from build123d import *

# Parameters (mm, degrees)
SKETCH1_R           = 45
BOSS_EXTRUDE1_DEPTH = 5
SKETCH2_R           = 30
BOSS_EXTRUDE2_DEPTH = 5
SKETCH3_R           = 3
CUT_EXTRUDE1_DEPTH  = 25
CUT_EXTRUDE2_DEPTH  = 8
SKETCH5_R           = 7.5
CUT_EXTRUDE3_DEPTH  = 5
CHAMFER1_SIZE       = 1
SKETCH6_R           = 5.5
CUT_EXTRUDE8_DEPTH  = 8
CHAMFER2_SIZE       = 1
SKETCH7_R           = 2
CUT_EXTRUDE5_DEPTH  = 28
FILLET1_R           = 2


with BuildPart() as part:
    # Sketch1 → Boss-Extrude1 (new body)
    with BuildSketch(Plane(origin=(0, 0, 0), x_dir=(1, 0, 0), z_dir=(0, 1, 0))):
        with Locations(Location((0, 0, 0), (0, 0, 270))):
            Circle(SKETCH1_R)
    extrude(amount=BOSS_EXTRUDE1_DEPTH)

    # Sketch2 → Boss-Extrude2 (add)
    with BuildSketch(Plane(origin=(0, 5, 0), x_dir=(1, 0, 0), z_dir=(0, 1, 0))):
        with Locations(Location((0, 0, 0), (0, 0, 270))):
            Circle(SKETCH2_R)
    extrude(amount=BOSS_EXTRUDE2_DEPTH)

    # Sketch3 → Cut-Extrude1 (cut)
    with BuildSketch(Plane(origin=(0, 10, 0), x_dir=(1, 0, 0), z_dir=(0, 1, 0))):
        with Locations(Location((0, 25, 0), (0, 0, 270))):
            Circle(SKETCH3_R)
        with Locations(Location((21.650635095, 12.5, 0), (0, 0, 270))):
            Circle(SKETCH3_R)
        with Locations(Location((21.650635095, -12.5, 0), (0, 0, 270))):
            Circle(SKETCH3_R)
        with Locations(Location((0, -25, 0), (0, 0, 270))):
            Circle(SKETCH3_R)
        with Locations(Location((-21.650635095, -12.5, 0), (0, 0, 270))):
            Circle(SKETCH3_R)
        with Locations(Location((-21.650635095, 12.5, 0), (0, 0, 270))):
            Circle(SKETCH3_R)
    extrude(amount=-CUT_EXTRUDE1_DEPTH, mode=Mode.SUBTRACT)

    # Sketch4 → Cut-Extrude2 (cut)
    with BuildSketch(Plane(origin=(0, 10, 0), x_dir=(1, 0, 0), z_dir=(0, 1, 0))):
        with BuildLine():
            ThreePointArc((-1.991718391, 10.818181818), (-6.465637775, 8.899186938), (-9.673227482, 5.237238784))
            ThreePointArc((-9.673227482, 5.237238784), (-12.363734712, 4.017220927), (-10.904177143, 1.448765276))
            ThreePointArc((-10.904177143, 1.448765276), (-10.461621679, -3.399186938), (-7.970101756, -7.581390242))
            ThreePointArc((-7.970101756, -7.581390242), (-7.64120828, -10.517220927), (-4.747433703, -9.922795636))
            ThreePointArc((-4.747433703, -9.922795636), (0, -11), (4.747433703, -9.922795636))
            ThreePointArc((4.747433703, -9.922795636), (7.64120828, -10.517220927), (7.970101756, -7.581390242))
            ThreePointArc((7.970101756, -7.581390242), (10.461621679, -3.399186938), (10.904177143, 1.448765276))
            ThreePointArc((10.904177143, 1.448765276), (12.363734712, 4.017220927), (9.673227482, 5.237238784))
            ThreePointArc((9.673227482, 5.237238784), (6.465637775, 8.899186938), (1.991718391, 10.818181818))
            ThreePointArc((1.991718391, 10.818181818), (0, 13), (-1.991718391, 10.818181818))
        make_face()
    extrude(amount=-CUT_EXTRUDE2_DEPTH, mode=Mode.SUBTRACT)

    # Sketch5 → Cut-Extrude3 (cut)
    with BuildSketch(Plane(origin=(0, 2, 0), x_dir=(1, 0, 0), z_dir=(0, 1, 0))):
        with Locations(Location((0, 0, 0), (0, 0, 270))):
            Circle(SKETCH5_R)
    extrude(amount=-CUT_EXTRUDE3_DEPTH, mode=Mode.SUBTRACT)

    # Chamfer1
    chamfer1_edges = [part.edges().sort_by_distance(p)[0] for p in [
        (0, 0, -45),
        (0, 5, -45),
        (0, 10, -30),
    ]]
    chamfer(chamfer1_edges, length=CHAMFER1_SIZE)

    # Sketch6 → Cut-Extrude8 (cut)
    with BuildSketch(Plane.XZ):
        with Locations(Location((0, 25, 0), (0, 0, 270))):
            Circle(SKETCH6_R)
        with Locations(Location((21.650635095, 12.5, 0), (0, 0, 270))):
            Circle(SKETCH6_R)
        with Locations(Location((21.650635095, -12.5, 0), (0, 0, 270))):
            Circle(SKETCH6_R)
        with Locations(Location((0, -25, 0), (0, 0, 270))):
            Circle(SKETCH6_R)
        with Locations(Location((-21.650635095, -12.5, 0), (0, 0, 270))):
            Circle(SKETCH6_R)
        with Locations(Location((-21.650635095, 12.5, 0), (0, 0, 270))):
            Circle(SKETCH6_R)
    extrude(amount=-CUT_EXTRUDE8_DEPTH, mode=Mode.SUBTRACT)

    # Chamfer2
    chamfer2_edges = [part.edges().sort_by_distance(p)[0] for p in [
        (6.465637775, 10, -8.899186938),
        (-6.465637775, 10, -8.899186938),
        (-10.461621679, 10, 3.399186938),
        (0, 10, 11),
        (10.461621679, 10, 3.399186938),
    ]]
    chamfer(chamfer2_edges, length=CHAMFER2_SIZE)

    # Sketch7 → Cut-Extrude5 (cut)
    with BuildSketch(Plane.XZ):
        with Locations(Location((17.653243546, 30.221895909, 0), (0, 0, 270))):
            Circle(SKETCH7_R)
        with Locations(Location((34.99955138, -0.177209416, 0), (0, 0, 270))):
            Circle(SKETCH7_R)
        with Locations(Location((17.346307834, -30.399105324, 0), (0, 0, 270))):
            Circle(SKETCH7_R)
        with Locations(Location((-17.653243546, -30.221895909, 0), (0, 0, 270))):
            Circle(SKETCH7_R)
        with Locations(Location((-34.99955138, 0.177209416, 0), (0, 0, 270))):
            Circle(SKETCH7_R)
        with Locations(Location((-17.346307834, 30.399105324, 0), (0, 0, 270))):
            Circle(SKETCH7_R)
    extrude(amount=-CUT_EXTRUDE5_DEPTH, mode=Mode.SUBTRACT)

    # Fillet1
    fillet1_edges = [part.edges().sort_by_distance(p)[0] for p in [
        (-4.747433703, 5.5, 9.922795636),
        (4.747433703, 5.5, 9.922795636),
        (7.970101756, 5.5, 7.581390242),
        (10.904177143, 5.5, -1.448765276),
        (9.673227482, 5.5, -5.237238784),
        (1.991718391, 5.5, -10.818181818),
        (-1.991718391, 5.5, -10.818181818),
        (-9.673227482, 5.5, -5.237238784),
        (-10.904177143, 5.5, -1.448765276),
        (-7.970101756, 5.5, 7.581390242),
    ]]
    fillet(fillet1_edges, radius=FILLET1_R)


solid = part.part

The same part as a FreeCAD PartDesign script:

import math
import FreeCAD as App
import Part
import Sketcher
Q = App.Units.Quantity


def edges_at(feature, points):
    """Names of the edges that pass closest to the given points."""
    edges = feature.Shape.Edges
    near = lambda p: min(range(len(edges)), key=lambda i: edges[i].distToShape(Part.Vertex(*p))[0])
    return sorted({f"Edge{near(p) + 1}" for p in points})

doc = App.newDocument("Part")
body = doc.addObject("PartDesign::Body", "Body")

# Sketch on XZ plane
sketch1 = body.newObject("Sketcher::SketchObject", "Sketch")
sketch1.AttachmentSupport = (doc.getObject("XZ_Plane"), [""])
sketch1.MapMode = "FlatFace"
sketch1.addGeometry(Part.Circle(App.Vector(0, 0, 0), App.Vector(0, 0, 1), 45), False)
sketch1.addConstraint(Sketcher.Constraint("Coincident", 0, 3, -1, 1))
sketch1.addConstraint(Sketcher.Constraint("Diameter", 0, Q("90 mm")))
pad1 = body.newObject("PartDesign::Pad", "Pad")
pad1.Profile = sketch1
pad1.Length = 5
pad1.Reversed = True

# Sketch on XZ plane
sketch2 = body.newObject("Sketcher::SketchObject", "Sketch001")
sketch2.AttachmentSupport = (doc.getObject("XZ_Plane"), [""])
sketch2.MapMode = "FlatFace"
sketch2.AttachmentOffset = App.Placement(App.Vector(0, 0, -5), App.Rotation())
sketch2.addGeometry(Part.Circle(App.Vector(0, 0, 0), App.Vector(0, 0, 1), 30), False)
sketch2.addConstraint(Sketcher.Constraint("Coincident", 0, 3, -1, 1))
sketch2.addConstraint(Sketcher.Constraint("Diameter", 0, Q("60 mm")))
pad2 = body.newObject("PartDesign::Pad", "Pad001")
pad2.Profile = sketch2
pad2.Length = 5
pad2.Reversed = True

# Sketch on XZ plane
sketch3 = body.newObject("Sketcher::SketchObject", "Sketch002")
sketch3.AttachmentSupport = (doc.getObject("XZ_Plane"), [""])
sketch3.MapMode = "FlatFace"
sketch3.AttachmentOffset = App.Placement(App.Vector(0, 0, -10), App.Rotation())
sketch3.addGeometry(Part.Circle(App.Vector(0, -25, 0), App.Vector(0, 0, 1), 3), False)
sketch3.addGeometry(Part.Circle(App.Vector(21.7, -12.5, 0), App.Vector(0, 0, 1), 3), False)
sketch3.addGeometry(Part.Circle(App.Vector(21.7, 12.5, 0), App.Vector(0, 0, 1), 3), False)
sketch3.addGeometry(Part.Circle(App.Vector(0, 25, 0), App.Vector(0, 0, 1), 3), False)
sketch3.addGeometry(Part.Circle(App.Vector(-21.7, 12.5, 0), App.Vector(0, 0, 1), 3), False)
sketch3.addGeometry(Part.Circle(App.Vector(-21.7, -12.5, 0), App.Vector(0, 0, 1), 3), False)
sketch3.addConstraint(Sketcher.Constraint("Equal", 0, 1))
sketch3.addConstraint(Sketcher.Constraint("Equal", 1, 2))
sketch3.addConstraint(Sketcher.Constraint("Equal", 2, 3))
sketch3.addConstraint(Sketcher.Constraint("Equal", 3, 4))
sketch3.addConstraint(Sketcher.Constraint("Equal", 4, 5))
sketch3.addConstraint(Sketcher.Constraint("Symmetric", 0, 3, 3, 3, -1, 1))
sketch3.addConstraint(Sketcher.Constraint("Symmetric", 1, 3, 4, 3, -1, 1))
sketch3.addConstraint(Sketcher.Constraint("Symmetric", 2, 3, 5, 3, -1, 1))
sketch3.addConstraint(Sketcher.Constraint("Symmetric", 2, 3, 4, 3, -2))
sketch3.addConstraint(Sketcher.Constraint("PointOnObject", 0, 3, -2))
sketch3.addConstraint(Sketcher.Constraint("Diameter", 0, Q("6 mm")))
sketch3.addConstraint(Sketcher.Constraint("DistanceY", 0, 3, -1, 1, Q("25 mm")))
sketch3.addConstraint(Sketcher.Constraint("DistanceY", 1, 3, 2, 3, Q("25 mm")))
sketch3.addConstraint(Sketcher.Constraint("DistanceX", 4, 3, 2, 3, Q("43.30127 mm")))
pocket1 = body.newObject("PartDesign::Pocket", "Pocket")
pocket1.Profile = sketch3
pocket1.Length = 25
pocket1.Reversed = True

# Sketch on XZ plane
sketch4 = body.newObject("Sketcher::SketchObject", "Sketch003")
sketch4.AttachmentSupport = (doc.getObject("XZ_Plane"), [""])
sketch4.MapMode = "FlatFace"
sketch4.AttachmentOffset = App.Placement(App.Vector(0, 0, -10), App.Rotation())
sketch4.addGeometry(Part.ArcOfCircle(Part.Circle(App.Vector(0, 0, 0), App.Vector(0, 0, 1), 11), math.radians(-152), math.radians(-100)), False)
sketch4.addGeometry(Part.ArcOfCircle(Part.Circle(App.Vector(-10.5, -3.4, 0), App.Vector(0, 0, 1), 2), math.radians(103), math.radians(293)), False)
sketch4.addGeometry(Part.ArcOfCircle(Part.Circle(App.Vector(0, 0, 0), App.Vector(0, 0, 1), 11), math.radians(136), math.radians(188)), False)
sketch4.addGeometry(Part.ArcOfCircle(Part.Circle(App.Vector(-6.5, 8.9, 0), App.Vector(0, 0, 1), 2), math.radians(31), math.radians(221)), False)
sketch4.addGeometry(Part.ArcOfCircle(Part.Circle(App.Vector(0, 0, 0), App.Vector(0, 0, 1), 11), math.radians(64), math.radians(116)), False)
sketch4.addGeometry(Part.ArcOfCircle(Part.Circle(App.Vector(6.5, 8.9, 0), App.Vector(0, 0, 1), 2), math.radians(-41), math.radians(149)), False)
sketch4.addGeometry(Part.ArcOfCircle(Part.Circle(App.Vector(0, 0, 0), App.Vector(0, 0, 1), 11), math.radians(-8), math.radians(44)), False)
sketch4.addGeometry(Part.ArcOfCircle(Part.Circle(App.Vector(10.5, -3.4, 0), App.Vector(0, 0, 1), 2), math.radians(-113), math.radians(77)), False)
sketch4.addGeometry(Part.ArcOfCircle(Part.Circle(App.Vector(0, 0, 0), App.Vector(0, 0, 1), 11), math.radians(-80), math.radians(-28)), False)
sketch4.addGeometry(Part.ArcOfCircle(Part.Circle(App.Vector(0, -11, 0), App.Vector(0, 0, 1), 2), math.radians(175), math.radians(365)), False)
sketch4.addConstraint(Sketcher.Constraint("Coincident", 0, 1, 1, 2))
sketch4.addConstraint(Sketcher.Constraint("Coincident", 1, 1, 2, 2))
sketch4.addConstraint(Sketcher.Constraint("Coincident", 2, 1, 3, 2))
sketch4.addConstraint(Sketcher.Constraint("Coincident", 3, 1, 4, 2))
sketch4.addConstraint(Sketcher.Constraint("Coincident", 4, 1, 5, 2))
sketch4.addConstraint(Sketcher.Constraint("Coincident", 5, 1, 6, 2))
sketch4.addConstraint(Sketcher.Constraint("Coincident", 6, 1, 7, 2))
sketch4.addConstraint(Sketcher.Constraint("Coincident", 7, 1, 8, 2))
sketch4.addConstraint(Sketcher.Constraint("Coincident", 8, 1, 9, 2))
sketch4.addConstraint(Sketcher.Constraint("Coincident", 9, 1, 0, 2))
sketch4.addConstraint(Sketcher.Constraint("Coincident", 0, 3, -1, 1))
sketch4.addConstraint(Sketcher.Constraint("Coincident", 2, 3, -1, 1))
sketch4.addConstraint(Sketcher.Constraint("Coincident", 4, 3, -1, 1))
sketch4.addConstraint(Sketcher.Constraint("Coincident", 6, 3, -1, 1))
sketch4.addConstraint(Sketcher.Constraint("Coincident", 8, 3, -1, 1))
sketch4.addConstraint(Sketcher.Constraint("Equal", 0, 2))
sketch4.addConstraint(Sketcher.Constraint("Equal", 1, 3))
sketch4.addConstraint(Sketcher.Constraint("Equal", 2, 4))
sketch4.addConstraint(Sketcher.Constraint("Equal", 3, 5))
sketch4.addConstraint(Sketcher.Constraint("Equal", 4, 6))
sketch4.addConstraint(Sketcher.Constraint("Equal", 5, 7))
sketch4.addConstraint(Sketcher.Constraint("Equal", 6, 8))
sketch4.addConstraint(Sketcher.Constraint("Equal", 7, 9))
sketch4.addConstraint(Sketcher.Constraint("Symmetric", 3, 3, 5, 3, -2))
sketch4.addConstraint(Sketcher.Constraint("Symmetric", 1, 3, 7, 3, -2))
sketch4.addConstraint(Sketcher.Constraint("PointOnObject", 9, 3, -2))
sketch4.addConstraint(Sketcher.Constraint("Radius", 0, Q("11 mm")))
sketch4.addConstraint(Sketcher.Constraint("Radius", 1, Q("2 mm")))
sketch4.addConstraint(Sketcher.Constraint("DistanceY", 9, 3, -1, 1, Q("11 mm")))
sketch4.addConstraint(Sketcher.Constraint("DistanceX", 2, 1, -1, 1, Q("7.970102 mm")))
sketch4.addConstraint(Sketcher.Constraint("DistanceX", 1, 3, -1, 1, Q("10.461622 mm")))
sketch4.addConstraint(Sketcher.Constraint("DistanceY", 0, 1, -1, 1, Q("5.237239 mm")))
sketch4.addConstraint(Sketcher.Constraint("DistanceX", 1, 3, 5, 3, Q("16.927259 mm")))
pocket2 = body.newObject("PartDesign::Pocket", "Pocket001")
pocket2.Profile = sketch4
pocket2.Length = 8
pocket2.Reversed = True

# Sketch on XZ plane
sketch5 = body.newObject("Sketcher::SketchObject", "Sketch004")
sketch5.AttachmentSupport = (doc.getObject("XZ_Plane"), [""])
sketch5.MapMode = "FlatFace"
sketch5.AttachmentOffset = App.Placement(App.Vector(0, 0, -2), App.Rotation())
sketch5.addGeometry(Part.Circle(App.Vector(0, 0, 0), App.Vector(0, 0, 1), 8), False)
sketch5.addConstraint(Sketcher.Constraint("Coincident", 0, 3, -1, 1))
sketch5.addConstraint(Sketcher.Constraint("Diameter", 0, Q("15 mm")))
pocket3 = body.newObject("PartDesign::Pocket", "Pocket002")
pocket3.Profile = sketch5
pocket3.Length = 5
pocket3.Reversed = True
doc.recompute()

chamfer = body.newObject("PartDesign::Chamfer", "Chamfer")
chamfer.Base = (pocket3, edges_at(pocket3, [(0, 0, -45), (0, 5, -45), (0, 10, -30)]))
chamfer.Size = 1

# Sketch on XZ plane
sketch6 = body.newObject("Sketcher::SketchObject", "Sketch005")
sketch6.AttachmentSupport = (doc.getObject("XZ_Plane"), [""])
sketch6.MapMode = "FlatFace"
sketch6.addGeometry(Part.Circle(App.Vector(0, 25, 0), App.Vector(0, 0, 1), 6), False)
sketch6.addGeometry(Part.Circle(App.Vector(22, 12, 0), App.Vector(0, 0, 1), 6), False)
sketch6.addGeometry(Part.Circle(App.Vector(22, -12, 0), App.Vector(0, 0, 1), 6), False)
sketch6.addGeometry(Part.Circle(App.Vector(0, -25, 0), App.Vector(0, 0, 1), 6), False)
sketch6.addGeometry(Part.Circle(App.Vector(-22, -12, 0), App.Vector(0, 0, 1), 6), False)
sketch6.addGeometry(Part.Circle(App.Vector(-22, 12, 0), App.Vector(0, 0, 1), 6), False)
sketch6.addConstraint(Sketcher.Constraint("Equal", 0, 1))
sketch6.addConstraint(Sketcher.Constraint("Equal", 1, 2))
sketch6.addConstraint(Sketcher.Constraint("Equal", 2, 3))
sketch6.addConstraint(Sketcher.Constraint("Equal", 3, 4))
sketch6.addConstraint(Sketcher.Constraint("Equal", 4, 5))
sketch6.addConstraint(Sketcher.Constraint("Symmetric", 0, 3, 3, 3, -1, 1))
sketch6.addConstraint(Sketcher.Constraint("Symmetric", 1, 3, 4, 3, -1, 1))
sketch6.addConstraint(Sketcher.Constraint("Symmetric", 2, 3, 5, 3, -1, 1))
sketch6.addConstraint(Sketcher.Constraint("Symmetric", 2, 3, 4, 3, -2))
sketch6.addConstraint(Sketcher.Constraint("PointOnObject", 0, 3, -2))
sketch6.addConstraint(Sketcher.Constraint("Diameter", 0, Q("11 mm")))
sketch6.addConstraint(Sketcher.Constraint("DistanceY", -1, 1, 0, 3, Q("25 mm")))
sketch6.addConstraint(Sketcher.Constraint("DistanceY", 2, 3, 1, 3, Q("25 mm")))
sketch6.addConstraint(Sketcher.Constraint("DistanceX", 4, 3, 2, 3, Q("43.30127 mm")))
pocket4 = body.newObject("PartDesign::Pocket", "Pocket003")
pocket4.Profile = sketch6
pocket4.Length = 8
doc.recompute()

chamfer2 = body.newObject("PartDesign::Chamfer", "Chamfer001")
chamfer2.Base = (pocket4, edges_at(pocket4, [
    (6.466, 10, -8.899),
    (-6.466, 10, -8.899),
    (-10.462, 10, 3.399),
    (0, 10, 11),
    (10.462, 10, 3.399),
]))
chamfer2.Size = 1

# Sketch on XZ plane
sketch7 = body.newObject("Sketcher::SketchObject", "Sketch006")
sketch7.AttachmentSupport = (doc.getObject("XZ_Plane"), [""])
sketch7.MapMode = "FlatFace"
sketch7.addGeometry(Part.Circle(App.Vector(17.7, 30.2, 0), App.Vector(0, 0, 1), 2), False)
sketch7.addGeometry(Part.Circle(App.Vector(35, -0.2, 0), App.Vector(0, 0, 1), 2), False)
sketch7.addGeometry(Part.Circle(App.Vector(17.3, -30.4, 0), App.Vector(0, 0, 1), 2), False)
sketch7.addGeometry(Part.Circle(App.Vector(-17.7, -30.2, 0), App.Vector(0, 0, 1), 2), False)
sketch7.addGeometry(Part.Circle(App.Vector(-35, 0.2, 0), App.Vector(0, 0, 1), 2), False)
sketch7.addGeometry(Part.Circle(App.Vector(-17.3, 30.4, 0), App.Vector(0, 0, 1), 2), False)
sketch7.addConstraint(Sketcher.Constraint("Equal", 0, 1))
sketch7.addConstraint(Sketcher.Constraint("Equal", 1, 2))
sketch7.addConstraint(Sketcher.Constraint("Equal", 2, 3))
sketch7.addConstraint(Sketcher.Constraint("Equal", 3, 4))
sketch7.addConstraint(Sketcher.Constraint("Equal", 4, 5))
sketch7.addConstraint(Sketcher.Constraint("Symmetric", 0, 3, 3, 3, -1, 1))
sketch7.addConstraint(Sketcher.Constraint("Symmetric", 1, 3, 4, 3, -1, 1))
sketch7.addConstraint(Sketcher.Constraint("Symmetric", 2, 3, 5, 3, -1, 1))
sketch7.addConstraint(Sketcher.Constraint("Diameter", 0, Q("4 mm")))
sketch7.addConstraint(Sketcher.Constraint("DistanceY", 2, 3, 0, 3, Q("60.621001 mm")))
sketch7.addConstraint(Sketcher.Constraint("DistanceX", -1, 1, 1, 3, Q("34.999551 mm")))
sketch7.addConstraint(Sketcher.Constraint("DistanceY", 1, 3, -1, 1, Q("0.177209 mm")))
sketch7.addConstraint(Sketcher.Constraint("DistanceX", 3, 3, 2, 3, Q("34.999551 mm")))
sketch7.addConstraint(Sketcher.Constraint("DistanceY", 2, 3, 3, 3, Q("0.177209 mm")))
sketch7.addConstraint(Sketcher.Constraint("DistanceX", 4, 3, 2, 3, Q("52.345859 mm")))
pocket5 = body.newObject("PartDesign::Pocket", "Pocket004")
pocket5.Profile = sketch7
pocket5.Length = 28
doc.recompute()

fillet = body.newObject("PartDesign::Fillet", "Fillet")
fillet.Base = (pocket5, edges_at(pocket5, [
    (-4.747, 5.5, 9.923),
    (4.747, 5.5, 9.923),
    (7.97, 5.5, 7.581),
    (10.904, 5.5, -1.449),
    (9.673, 5.5, -5.237),
    (1.992, 5.5, -10.818),
    (-1.992, 5.5, -10.818),
    (-9.673, 5.5, -5.237),
    (-10.904, 5.5, -1.449),
    (-7.97, 5.5, 7.581),
]))
fillet.Radius = 2

doc.recompute()
